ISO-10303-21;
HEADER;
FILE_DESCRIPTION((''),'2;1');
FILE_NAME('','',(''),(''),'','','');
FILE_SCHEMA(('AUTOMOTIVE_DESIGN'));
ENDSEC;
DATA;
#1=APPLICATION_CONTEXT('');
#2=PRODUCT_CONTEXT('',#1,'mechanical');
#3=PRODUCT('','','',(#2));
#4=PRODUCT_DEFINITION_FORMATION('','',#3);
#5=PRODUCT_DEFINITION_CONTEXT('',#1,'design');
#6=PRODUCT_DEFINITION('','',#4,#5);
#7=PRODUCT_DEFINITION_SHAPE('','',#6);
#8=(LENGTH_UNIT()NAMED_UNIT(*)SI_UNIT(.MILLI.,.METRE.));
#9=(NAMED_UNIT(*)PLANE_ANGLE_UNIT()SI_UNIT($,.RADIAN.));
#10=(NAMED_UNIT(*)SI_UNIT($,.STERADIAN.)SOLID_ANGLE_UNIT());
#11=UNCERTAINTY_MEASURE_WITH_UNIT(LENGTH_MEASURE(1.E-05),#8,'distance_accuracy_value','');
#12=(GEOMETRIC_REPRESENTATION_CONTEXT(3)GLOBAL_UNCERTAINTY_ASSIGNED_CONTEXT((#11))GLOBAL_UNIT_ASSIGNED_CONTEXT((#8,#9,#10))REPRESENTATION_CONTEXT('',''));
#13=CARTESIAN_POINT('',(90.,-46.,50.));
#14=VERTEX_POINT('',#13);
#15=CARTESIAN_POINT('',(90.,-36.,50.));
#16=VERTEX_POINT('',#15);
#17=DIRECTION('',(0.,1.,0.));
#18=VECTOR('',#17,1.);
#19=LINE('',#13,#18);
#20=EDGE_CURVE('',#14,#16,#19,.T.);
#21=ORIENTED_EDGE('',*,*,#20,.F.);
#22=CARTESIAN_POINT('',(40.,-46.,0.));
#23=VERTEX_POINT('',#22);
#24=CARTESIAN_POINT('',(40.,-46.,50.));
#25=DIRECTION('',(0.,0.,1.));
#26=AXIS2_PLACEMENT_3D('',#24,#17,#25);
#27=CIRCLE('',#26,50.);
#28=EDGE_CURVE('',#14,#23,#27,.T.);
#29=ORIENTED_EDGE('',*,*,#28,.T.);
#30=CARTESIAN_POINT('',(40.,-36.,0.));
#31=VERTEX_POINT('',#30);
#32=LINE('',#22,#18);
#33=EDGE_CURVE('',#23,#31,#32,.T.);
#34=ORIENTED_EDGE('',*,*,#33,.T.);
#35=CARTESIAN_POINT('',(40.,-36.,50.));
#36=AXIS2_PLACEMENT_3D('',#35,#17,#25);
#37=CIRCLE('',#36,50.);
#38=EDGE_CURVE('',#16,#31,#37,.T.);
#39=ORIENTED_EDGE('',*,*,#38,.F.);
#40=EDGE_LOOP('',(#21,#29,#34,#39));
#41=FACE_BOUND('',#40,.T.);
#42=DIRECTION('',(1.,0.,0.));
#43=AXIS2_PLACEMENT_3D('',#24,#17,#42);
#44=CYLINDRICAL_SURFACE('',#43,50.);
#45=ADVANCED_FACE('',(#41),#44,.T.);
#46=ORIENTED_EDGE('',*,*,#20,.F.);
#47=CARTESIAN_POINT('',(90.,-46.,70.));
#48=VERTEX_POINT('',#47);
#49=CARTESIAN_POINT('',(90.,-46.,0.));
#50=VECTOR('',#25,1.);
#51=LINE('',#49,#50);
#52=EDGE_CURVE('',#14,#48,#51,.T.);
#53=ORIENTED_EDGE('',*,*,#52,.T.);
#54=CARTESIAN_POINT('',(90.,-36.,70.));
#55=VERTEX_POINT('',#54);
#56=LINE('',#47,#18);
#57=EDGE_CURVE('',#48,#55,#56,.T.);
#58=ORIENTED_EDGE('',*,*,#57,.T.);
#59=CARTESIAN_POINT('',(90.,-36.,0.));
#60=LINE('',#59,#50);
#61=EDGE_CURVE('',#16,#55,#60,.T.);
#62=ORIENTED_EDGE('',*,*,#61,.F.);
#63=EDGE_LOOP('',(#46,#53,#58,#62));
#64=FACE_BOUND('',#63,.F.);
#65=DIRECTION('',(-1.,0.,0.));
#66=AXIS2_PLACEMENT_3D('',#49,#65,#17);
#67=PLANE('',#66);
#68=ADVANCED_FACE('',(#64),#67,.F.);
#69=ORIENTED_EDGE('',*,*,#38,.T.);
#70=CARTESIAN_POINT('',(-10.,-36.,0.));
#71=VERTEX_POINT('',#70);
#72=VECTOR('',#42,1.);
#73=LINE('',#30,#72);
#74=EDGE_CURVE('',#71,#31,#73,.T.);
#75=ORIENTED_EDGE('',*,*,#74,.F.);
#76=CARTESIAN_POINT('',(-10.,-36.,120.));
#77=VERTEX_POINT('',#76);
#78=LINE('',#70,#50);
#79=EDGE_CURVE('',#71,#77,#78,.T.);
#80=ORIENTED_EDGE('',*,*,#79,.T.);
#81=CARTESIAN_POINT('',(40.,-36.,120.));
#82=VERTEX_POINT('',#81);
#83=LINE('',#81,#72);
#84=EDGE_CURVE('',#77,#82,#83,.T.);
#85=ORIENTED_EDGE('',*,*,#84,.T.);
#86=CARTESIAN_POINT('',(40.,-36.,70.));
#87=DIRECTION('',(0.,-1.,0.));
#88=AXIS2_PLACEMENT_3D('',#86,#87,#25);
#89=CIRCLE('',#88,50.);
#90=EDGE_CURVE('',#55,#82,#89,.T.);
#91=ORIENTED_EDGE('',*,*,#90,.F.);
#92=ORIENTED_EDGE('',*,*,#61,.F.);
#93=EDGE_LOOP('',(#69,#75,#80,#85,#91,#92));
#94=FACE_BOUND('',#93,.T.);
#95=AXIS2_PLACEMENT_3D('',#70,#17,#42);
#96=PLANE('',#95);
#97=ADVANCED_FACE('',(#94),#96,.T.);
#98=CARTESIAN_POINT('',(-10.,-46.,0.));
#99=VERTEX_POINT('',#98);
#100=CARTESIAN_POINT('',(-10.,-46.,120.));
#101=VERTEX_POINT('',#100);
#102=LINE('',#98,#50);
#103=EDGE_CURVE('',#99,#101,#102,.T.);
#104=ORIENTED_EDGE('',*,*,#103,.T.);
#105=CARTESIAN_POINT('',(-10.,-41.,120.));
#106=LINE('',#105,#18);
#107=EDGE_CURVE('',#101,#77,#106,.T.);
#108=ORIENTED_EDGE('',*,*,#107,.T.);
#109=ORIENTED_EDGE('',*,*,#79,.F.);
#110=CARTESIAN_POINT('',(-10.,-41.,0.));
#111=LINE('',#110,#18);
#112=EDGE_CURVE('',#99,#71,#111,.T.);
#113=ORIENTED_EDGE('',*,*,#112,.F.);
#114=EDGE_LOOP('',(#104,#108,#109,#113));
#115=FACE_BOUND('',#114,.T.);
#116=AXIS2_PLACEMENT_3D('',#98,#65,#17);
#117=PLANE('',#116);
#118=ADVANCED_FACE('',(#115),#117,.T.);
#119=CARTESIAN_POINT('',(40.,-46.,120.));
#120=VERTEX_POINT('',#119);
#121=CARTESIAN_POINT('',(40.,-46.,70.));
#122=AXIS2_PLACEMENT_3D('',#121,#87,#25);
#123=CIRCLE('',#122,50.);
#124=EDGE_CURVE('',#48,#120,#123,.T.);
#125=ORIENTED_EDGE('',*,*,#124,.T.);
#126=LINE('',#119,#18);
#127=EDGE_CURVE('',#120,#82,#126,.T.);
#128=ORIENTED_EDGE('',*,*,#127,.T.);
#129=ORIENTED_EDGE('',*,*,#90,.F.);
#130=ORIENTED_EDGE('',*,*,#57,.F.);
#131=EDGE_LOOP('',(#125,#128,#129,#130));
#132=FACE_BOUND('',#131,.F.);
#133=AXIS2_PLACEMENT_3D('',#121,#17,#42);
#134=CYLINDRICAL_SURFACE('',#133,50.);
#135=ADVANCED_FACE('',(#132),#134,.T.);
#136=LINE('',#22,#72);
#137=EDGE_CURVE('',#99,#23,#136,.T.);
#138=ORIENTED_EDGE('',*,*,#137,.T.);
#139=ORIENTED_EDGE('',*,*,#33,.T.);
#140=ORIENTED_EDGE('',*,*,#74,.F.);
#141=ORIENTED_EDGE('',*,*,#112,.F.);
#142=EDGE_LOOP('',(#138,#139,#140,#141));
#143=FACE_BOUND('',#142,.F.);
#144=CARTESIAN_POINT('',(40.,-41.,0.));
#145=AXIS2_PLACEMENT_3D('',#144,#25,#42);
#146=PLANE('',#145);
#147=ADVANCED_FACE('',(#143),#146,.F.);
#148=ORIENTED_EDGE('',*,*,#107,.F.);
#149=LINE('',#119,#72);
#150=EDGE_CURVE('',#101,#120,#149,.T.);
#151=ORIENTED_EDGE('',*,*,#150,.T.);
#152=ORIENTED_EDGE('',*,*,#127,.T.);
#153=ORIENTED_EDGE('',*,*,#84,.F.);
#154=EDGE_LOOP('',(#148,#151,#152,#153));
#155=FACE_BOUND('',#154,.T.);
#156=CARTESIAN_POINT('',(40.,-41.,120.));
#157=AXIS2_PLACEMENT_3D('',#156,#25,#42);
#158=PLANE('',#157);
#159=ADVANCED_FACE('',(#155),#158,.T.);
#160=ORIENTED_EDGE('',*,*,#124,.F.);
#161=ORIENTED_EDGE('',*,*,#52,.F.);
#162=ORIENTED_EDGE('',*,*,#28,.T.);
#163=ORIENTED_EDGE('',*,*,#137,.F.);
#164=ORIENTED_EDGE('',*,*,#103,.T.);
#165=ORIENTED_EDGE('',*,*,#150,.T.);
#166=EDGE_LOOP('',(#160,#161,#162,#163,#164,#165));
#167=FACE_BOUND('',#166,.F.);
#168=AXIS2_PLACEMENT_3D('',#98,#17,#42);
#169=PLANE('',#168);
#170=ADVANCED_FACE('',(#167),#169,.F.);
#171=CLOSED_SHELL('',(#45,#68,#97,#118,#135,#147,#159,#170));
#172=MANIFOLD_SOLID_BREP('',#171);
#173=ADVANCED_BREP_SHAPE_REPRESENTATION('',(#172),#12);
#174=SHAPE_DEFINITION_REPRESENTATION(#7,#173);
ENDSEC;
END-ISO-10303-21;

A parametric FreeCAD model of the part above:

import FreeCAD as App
import Part
import Sketcher
from FreeCAD import Vector


def edges_at(feature, points):
    """Names of the edges that pass closest to the given points."""
    edges = feature.Shape.Edges
    near = lambda p: min(range(len(edges)), key=lambda i: edges[i].distToShape(Part.Vertex(*p))[0])
    return sorted({f"Edge{near(p) + 1}" for p in points})

doc = App.newDocument("Part")
body = doc.addObject("PartDesign::Body", "Body")

# Sketch on XY plane
sketch1 = doc.addObject("Sketcher::SketchObject", "Sketch")
body.addObject(sketch1)
sketch1.AttachmentSupport = (doc.XY_Plane, [""])
sketch1.MapMode = "FlatFace"
sketch1.addGeometry(Part.LineSegment(Vector(-10, -36, 0), Vector(-10, -46, 0)), False)
sketch1.addGeometry(Part.LineSegment(Vector(-10, -46, 0), Vector(90, -46, 0)), False)
sketch1.addGeometry(Part.LineSegment(Vector(90, -46, 0), Vector(90, -36, 0)), False)
sketch1.addGeometry(Part.LineSegment(Vector(90, -36, 0), Vector(-10, -36, 0)), False)
sketch1.addConstraint(Sketcher.Constraint("Coincident", 0, 2, 1, 1))
sketch1.addConstraint(Sketcher.Constraint("Coincident", 1, 2, 2, 1))
sketch1.addConstraint(Sketcher.Constraint("Coincident", 2, 2, 3, 1))
sketch1.addConstraint(Sketcher.Constraint("Coincident", 3, 2, 0, 1))
sketch1.addConstraint(Sketcher.Constraint("Vertical", 0))
sketch1.addConstraint(Sketcher.Constraint("Horizontal", 1))
sketch1.addConstraint(Sketcher.Constraint("Vertical", 2))
sketch1.addConstraint(Sketcher.Constraint("Horizontal", 3))
sketch1.addConstraint(Sketcher.Constraint("DistanceX", 1, 1, 1, 2, 100.0))
sketch1.addConstraint(Sketcher.Constraint("DistanceY", 0, 2, 0, 1, 10.0))
sketch1.addConstraint(Sketcher.Constraint("DistanceX", 0, 2, -1, 1, 10.0))
sketch1.addConstraint(Sketcher.Constraint("DistanceY", 0, 2, -1, 1, 46.0))
pad1 = doc.addObject("PartDesign::Pad", "Pad")
body.addObject(pad1)
pad1.Profile = sketch1
pad1.Length = 120
doc.recompute()

fillet = doc.addObject("PartDesign::Fillet", "Fillet")
body.addObject(fillet)
fillet.Base = (pad1, edges_at(pad1, [(90, -41, 0)]))
fillet.Radius = 50
doc.recompute()

fillet2 = doc.addObject("PartDesign::Fillet", "Fillet001")
body.addObject(fillet2)
fillet2.Base = (fillet, edges_at(fillet, [(90, -41, 120)]))
fillet2.Radius = 50

doc.recompute()
